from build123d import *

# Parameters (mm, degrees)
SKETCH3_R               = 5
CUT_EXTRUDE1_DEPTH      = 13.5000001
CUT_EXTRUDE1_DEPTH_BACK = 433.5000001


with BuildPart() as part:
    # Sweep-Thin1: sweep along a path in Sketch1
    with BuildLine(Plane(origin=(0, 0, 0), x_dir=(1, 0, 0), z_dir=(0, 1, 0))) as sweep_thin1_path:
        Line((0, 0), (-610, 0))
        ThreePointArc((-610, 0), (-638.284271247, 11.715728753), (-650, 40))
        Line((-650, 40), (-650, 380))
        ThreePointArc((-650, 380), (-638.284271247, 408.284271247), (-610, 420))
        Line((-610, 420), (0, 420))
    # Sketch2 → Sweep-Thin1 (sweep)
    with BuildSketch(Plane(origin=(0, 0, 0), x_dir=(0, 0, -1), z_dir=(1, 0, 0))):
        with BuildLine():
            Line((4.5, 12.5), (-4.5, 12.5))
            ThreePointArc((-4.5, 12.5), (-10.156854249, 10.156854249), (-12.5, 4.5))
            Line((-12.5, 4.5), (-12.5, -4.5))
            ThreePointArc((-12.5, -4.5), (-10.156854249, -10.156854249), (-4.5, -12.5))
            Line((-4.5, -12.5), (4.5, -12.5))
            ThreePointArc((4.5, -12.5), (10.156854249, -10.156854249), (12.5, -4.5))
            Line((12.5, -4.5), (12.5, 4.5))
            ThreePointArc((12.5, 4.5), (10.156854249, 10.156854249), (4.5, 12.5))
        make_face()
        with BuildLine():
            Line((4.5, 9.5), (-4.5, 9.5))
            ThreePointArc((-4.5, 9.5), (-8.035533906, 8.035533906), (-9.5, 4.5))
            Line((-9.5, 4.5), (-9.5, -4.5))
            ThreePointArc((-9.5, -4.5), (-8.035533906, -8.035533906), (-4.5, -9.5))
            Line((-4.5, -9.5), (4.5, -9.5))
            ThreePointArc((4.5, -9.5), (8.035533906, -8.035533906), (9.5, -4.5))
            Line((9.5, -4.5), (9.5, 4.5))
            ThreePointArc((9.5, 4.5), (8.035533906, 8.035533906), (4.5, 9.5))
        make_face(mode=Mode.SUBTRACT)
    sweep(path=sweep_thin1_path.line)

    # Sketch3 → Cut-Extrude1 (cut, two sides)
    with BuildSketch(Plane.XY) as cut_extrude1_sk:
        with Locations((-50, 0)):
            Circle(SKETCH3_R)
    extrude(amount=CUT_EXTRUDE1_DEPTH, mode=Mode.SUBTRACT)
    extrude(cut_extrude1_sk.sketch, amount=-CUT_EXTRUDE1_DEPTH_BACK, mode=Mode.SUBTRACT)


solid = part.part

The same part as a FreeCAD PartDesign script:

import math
import FreeCAD as App
import Part
import Sketcher

doc = App.newDocument("Part")
body = doc.addObject("PartDesign::Body", "Body")

sketch1 = body.newObject("Sketcher::SketchObject", "Sketch")
sketch1.AttachmentSupport = (doc.getObject("YZ_Plane"), [""])
sketch1.MapMode = "FlatFace"
sketch1.addGeometry(Part.LineSegment(App.Vector(12, -4, 0), App.Vector(12, 4, 0)), False)
sketch1.addGeometry(Part.ArcOfCircle(Part.Circle(App.Vector(4, 4, 0), App.Vector(0, 0, 1), 8), math.radians(0), math.radians(90)), False)
sketch1.addGeometry(Part.LineSegment(App.Vector(4, 12, 0), App.Vector(-4, 12, 0)), False)
sketch1.addGeometry(Part.ArcOfCircle(Part.Circle(App.Vector(-4, 4, 0), App.Vector(0, 0, 1), 8), math.radians(90), math.radians(180)), False)
sketch1.addGeometry(Part.LineSegment(App.Vector(-12, 4, 0), App.Vector(-12, -4, 0)), False)
sketch1.addGeometry(Part.ArcOfCircle(Part.Circle(App.Vector(-4, -4, 0), App.Vector(0, 0, 1), 8), math.radians(-180), math.radians(-90)), False)
sketch1.addGeometry(Part.LineSegment(App.Vector(-4, -12, 0), App.Vector(4, -12, 0)), False)
sketch1.addGeometry(Part.ArcOfCircle(Part.Circle(App.Vector(4, -4, 0), App.Vector(0, 0, 1), 8), math.radians(-90), math.radians(0)), False)
sketch1.addGeometry(Part.LineSegment(App.Vector(10, 4, 0), App.Vector(10, -4, 0)), False)
sketch1.addGeometry(Part.ArcOfCircle(Part.Circle(App.Vector(4, -4, 0), App.Vector(0, 0, 1), 5), math.radians(-90), math.radians(0)), False)
sketch1.addGeometry(Part.LineSegment(App.Vector(4, -10, 0), App.Vector(-4, -10, 0)), False)
sketch1.addGeometry(Part.ArcOfCircle(Part.Circle(App.Vector(-4, -4, 0), App.Vector(0, 0, 1), 5), math.radians(180), math.radians(270)), False)
sketch1.addGeometry(Part.LineSegment(App.Vector(-10, -4, 0), App.Vector(-10, 4, 0)), False)
sketch1.addGeometry(Part.ArcOfCircle(Part.Circle(App.Vector(-4, 4, 0), App.Vector(0, 0, 1), 5), math.radians(90), math.radians(180)), False)
sketch1.addGeometry(Part.LineSegment(App.Vector(-4, 10, 0), App.Vector(4, 10, 0)), False)
sketch1.addGeometry(Part.ArcOfCircle(Part.Circle(App.Vector(4, 4, 0), App.Vector(0, 0, 1), 5), math.radians(0), math.radians(90)), False)
sketch1.addConstraint(Sketcher.Constraint("Tangent", 0, 2, 1, 1))
sketch1.addConstraint(Sketcher.Constraint("Tangent", 1, 2, 2, 1))
sketch1.addConstraint(Sketcher.Constraint("Tangent", 2, 2, 3, 1))
sketch1.addConstraint(Sketcher.Constraint("Tangent", 3, 2, 4, 1))
sketch1.addConstraint(Sketcher.Constraint("Tangent", 4, 2, 5, 1))
sketch1.addConstraint(Sketcher.Constraint("Tangent", 5, 2, 6, 1))
sketch1.addConstraint(Sketcher.Constraint("Tangent", 6, 2, 7, 1))
sketch1.addConstraint(Sketcher.Constraint("Tangent", 7, 2, 0, 1))
sketch1.addConstraint(Sketcher.Constraint("Tangent", 8, 2, 9, 2))
sketch1.addConstraint(Sketcher.Constraint("Tangent", 9, 1, 10, 1))
sketch1.addConstraint(Sketcher.Constraint("Tangent", 10, 2, 11, 2))
sketch1.addConstraint(Sketcher.Constraint("Tangent", 11, 1, 12, 1))
sketch1.addConstraint(Sketcher.Constraint("Tangent", 12, 2, 13, 2))
sketch1.addConstraint(Sketcher.Constraint("Tangent", 13, 1, 14, 1))
sketch1.addConstraint(Sketcher.Constraint("Tangent", 14, 2, 15, 2))
sketch1.addConstraint(Sketcher.Constraint("Tangent", 15, 1, 8, 1))
sketch1.addConstraint(Sketcher.Constraint("Vertical", 0))
sketch1.addConstraint(Sketcher.Constraint("Horizontal", 2))
sketch1.addConstraint(Sketcher.Constraint("Vertical", 4))
sketch1.addConstraint(Sketcher.Constraint("Horizontal", 6))
sketch1.addConstraint(Sketcher.Constraint("Vertical", 8))
sketch1.addConstraint(Sketcher.Constraint("Horizontal", 10))
sketch1.addConstraint(Sketcher.Constraint("Vertical", 12))
sketch1.addConstraint(Sketcher.Constraint("Horizontal", 14))
sketch1.addConstraint(Sketcher.Constraint("Coincident", 9, 3, 7, 3))
sketch1.addConstraint(Sketcher.Constraint("Coincident", 11, 3, 5, 3))
sketch1.addConstraint(Sketcher.Constraint("Coincident", 13, 3, 3, 3))
sketch1.addConstraint(Sketcher.Constraint("Equal", 1, 3))
sketch1.addConstraint(Sketcher.Constraint("Equal", 3, 5))
sketch1.addConstraint(Sketcher.Constraint("Equal", 5, 7))
sketch1.addConstraint(Sketcher.Constraint("Equal", 13, 15))
sketch1.addConstraint(Sketcher.Constraint("Symmetric", 1, 3, 5, 3, -1, 1))
sketch1.addConstraint(Sketcher.Constraint("Equal", 14, 0))
sketch1.addConstraint(Sketcher.Constraint("Radius", 1, 8.0))
sketch1.addConstraint(Sketcher.Constraint("Radius", 9, 5.0))
sketch1.addConstraint(Sketcher.Constraint("DistanceX", 2, 2, 2, 1, 9.0))

sketch2 = body.newObject("Sketcher::SketchObject", "Sketch001")
sketch2.AttachmentSupport = (doc.getObject("XZ_Plane"), [""])
sketch2.MapMode = "FlatFace"
sketch2.addGeometry(Part.LineSegment(App.Vector(0, 0, 0), App.Vector(-610, 0, 0)), False)
sketch2.addGeometry(Part.ArcOfCircle(Part.Circle(App.Vector(-610, -40, 0), App.Vector(0, 0, 1), 40), math.radians(90), math.radians(180)), False)
sketch2.addGeometry(Part.LineSegment(App.Vector(-650, -40, 0), App.Vector(-650, -380, 0)), False)
sketch2.addGeometry(Part.ArcOfCircle(Part.Circle(App.Vector(-610, -380, 0), App.Vector(0, 0, 1), 40), math.radians(-180), math.radians(-90)), False)
sketch2.addGeometry(Part.LineSegment(App.Vector(-610, -420, 0), App.Vector(0, -420, 0)), False)
sketch2.addConstraint(Sketcher.Constraint("Tangent", 0, 2, 1, 1))
sketch2.addConstraint(Sketcher.Constraint("Tangent", 1, 2, 2, 1))
sketch2.addConstraint(Sketcher.Constraint("Tangent", 2, 2, 3, 1))
sketch2.addConstraint(Sketcher.Constraint("Tangent", 3, 2, 4, 1))
sketch2.addConstraint(Sketcher.Constraint("Horizontal", 0))
sketch2.addConstraint(Sketcher.Constraint("Vertical", 2))
sketch2.addConstraint(Sketcher.Constraint("Horizontal", 4))
sketch2.addConstraint(Sketcher.Constraint("Coincident", 0, 1, -1, 1))
sketch2.addConstraint(Sketcher.Constraint("Equal", 1, 3))
sketch2.addConstraint(Sketcher.Constraint("PointOnObject", 4, 2, -2))
sketch2.addConstraint(Sketcher.Constraint("Radius", 1, 40.0))
sketch2.addConstraint(Sketcher.Constraint("DistanceX", 0, 2, 0, 1, 610.0))
sketch2.addConstraint(Sketcher.Constraint("DistanceY", 2, 2, 2, 1, 340.0))
doc.recompute()

additivepipe = body.newObject("PartDesign::AdditivePipe", "AdditivePipe")
additivepipe.Profile = sketch1
additivepipe.Spine = (sketch2, ["Edge1", "Edge2", "Edge3", "Edge4", "Edge5"])

sketch3 = body.newObject("Sketcher::SketchObject", "Sketch002")
sketch3.AttachmentSupport = (doc.getObject("XY_Plane"), [""])
sketch3.MapMode = "FlatFace"
sketch3.addGeometry(Part.Circle(App.Vector(-50, 0, 0), App.Vector(0, 0, 1), 5), False)
sketch3.addConstraint(Sketcher.Constraint("PointOnObject", 0, 3, -1))
sketch3.addConstraint(Sketcher.Constraint("Diameter", 0, 10.0))
sketch3.addConstraint(Sketcher.Constraint("DistanceX", 0, 3, -1, 1, 50.0))
pocket1 = body.newObject("PartDesign::Pocket", "Pocket")
pocket1.Profile = sketch3
pocket1.Type = "ThroughAll"
pocket1.Midplane = True

doc.recompute()
